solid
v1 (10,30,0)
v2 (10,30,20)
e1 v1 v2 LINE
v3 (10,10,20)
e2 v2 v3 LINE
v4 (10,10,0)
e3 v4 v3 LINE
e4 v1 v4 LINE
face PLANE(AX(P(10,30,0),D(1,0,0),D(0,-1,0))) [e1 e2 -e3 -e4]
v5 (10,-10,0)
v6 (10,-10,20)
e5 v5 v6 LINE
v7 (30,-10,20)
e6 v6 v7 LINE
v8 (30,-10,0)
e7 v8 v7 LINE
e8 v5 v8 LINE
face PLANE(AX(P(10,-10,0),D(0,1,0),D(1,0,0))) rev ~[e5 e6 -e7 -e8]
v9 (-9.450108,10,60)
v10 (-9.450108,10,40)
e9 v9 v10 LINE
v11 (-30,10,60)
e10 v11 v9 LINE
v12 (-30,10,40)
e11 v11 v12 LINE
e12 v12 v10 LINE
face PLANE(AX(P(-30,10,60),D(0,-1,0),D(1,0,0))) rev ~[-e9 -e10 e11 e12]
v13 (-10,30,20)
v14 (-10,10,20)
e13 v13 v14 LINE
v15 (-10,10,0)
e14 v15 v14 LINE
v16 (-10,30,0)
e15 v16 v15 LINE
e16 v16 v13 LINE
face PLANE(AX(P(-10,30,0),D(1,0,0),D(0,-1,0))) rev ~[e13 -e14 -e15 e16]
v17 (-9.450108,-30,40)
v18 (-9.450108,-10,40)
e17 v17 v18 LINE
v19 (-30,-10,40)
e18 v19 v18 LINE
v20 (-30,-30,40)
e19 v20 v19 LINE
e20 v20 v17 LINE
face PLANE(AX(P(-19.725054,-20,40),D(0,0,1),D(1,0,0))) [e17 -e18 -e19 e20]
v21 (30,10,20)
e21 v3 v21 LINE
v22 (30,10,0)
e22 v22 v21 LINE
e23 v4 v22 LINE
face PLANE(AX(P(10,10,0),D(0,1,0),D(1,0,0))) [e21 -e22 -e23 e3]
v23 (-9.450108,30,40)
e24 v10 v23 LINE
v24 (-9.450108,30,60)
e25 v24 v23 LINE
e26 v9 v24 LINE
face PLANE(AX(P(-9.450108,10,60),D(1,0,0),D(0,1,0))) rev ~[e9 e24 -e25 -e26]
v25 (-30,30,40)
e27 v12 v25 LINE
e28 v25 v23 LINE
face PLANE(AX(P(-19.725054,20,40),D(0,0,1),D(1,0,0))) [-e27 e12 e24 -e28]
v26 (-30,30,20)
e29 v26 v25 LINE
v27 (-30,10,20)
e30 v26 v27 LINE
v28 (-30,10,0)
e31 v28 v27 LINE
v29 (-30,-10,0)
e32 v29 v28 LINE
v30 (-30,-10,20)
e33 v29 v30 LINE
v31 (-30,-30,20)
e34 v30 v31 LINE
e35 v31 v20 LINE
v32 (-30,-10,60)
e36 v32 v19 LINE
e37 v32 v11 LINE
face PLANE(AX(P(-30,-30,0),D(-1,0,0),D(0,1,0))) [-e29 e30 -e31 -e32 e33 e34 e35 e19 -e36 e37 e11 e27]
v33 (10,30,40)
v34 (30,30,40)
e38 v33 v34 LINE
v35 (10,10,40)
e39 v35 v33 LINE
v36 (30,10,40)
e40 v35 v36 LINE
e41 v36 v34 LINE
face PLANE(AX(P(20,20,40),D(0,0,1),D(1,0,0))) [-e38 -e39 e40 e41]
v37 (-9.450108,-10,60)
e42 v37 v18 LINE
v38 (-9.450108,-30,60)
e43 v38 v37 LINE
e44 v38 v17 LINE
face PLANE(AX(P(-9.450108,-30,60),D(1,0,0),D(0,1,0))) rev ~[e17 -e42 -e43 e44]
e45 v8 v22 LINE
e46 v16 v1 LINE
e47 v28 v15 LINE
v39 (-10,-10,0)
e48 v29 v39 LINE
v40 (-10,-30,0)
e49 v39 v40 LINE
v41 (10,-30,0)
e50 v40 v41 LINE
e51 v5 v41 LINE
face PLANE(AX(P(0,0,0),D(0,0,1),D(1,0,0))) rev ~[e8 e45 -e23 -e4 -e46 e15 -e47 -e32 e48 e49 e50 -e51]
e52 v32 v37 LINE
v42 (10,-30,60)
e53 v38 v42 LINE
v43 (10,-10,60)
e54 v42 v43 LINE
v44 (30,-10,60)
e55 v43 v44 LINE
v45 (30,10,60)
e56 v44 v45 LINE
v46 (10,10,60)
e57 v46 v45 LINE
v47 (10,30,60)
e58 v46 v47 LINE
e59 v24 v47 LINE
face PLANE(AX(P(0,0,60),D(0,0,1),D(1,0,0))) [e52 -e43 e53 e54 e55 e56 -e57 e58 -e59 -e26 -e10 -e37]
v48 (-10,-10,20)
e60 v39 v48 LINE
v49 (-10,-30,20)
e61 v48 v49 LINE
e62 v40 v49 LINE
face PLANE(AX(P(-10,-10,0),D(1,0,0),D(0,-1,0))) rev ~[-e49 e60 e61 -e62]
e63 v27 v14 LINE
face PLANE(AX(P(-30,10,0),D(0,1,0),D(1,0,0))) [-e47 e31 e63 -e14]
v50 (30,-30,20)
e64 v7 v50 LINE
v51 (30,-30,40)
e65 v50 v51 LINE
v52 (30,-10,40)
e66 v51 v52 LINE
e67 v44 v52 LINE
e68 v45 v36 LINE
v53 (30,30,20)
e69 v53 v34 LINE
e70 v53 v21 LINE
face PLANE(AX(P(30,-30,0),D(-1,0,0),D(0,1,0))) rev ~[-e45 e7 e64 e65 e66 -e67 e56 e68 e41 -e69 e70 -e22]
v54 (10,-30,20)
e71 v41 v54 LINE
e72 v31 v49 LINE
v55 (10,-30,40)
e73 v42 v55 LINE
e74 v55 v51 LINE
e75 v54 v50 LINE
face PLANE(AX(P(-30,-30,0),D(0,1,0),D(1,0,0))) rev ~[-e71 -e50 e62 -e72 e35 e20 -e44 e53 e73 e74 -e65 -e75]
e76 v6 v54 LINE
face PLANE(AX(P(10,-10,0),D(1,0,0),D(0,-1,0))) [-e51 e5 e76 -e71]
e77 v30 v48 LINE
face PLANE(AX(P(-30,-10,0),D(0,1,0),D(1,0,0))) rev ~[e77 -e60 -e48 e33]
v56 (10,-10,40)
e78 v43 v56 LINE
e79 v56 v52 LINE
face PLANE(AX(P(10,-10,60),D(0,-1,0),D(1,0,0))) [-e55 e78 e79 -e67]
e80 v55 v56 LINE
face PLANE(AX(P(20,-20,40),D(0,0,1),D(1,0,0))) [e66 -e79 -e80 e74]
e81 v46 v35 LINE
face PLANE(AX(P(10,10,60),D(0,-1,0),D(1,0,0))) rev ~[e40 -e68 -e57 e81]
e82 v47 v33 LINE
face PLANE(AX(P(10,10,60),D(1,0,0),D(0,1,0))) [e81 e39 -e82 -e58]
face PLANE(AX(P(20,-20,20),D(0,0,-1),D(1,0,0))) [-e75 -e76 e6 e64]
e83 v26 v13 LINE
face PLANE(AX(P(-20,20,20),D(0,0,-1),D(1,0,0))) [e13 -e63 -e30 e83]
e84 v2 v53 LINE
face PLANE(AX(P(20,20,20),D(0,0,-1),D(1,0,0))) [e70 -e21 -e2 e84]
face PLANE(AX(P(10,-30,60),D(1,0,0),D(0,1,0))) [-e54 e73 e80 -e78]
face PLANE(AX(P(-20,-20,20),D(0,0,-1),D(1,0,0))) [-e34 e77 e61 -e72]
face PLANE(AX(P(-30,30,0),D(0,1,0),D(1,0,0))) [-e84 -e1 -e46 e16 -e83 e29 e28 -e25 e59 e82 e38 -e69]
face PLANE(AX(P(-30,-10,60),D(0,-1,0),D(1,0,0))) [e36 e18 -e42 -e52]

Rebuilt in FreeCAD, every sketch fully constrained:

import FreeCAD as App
import Part
import Sketcher
Q = App.Units.Quantity


def add_polygon(sketch, points):
    """Adds a closed chain of lines whose ends are joined by coincident constraints."""
    first, n = sketch.GeometryCount, len(points)
    for a, b in zip(points, points[1:] + points[:1]):
        sketch.addGeometry(Part.LineSegment(App.Vector(*a, 0), App.Vector(*b, 0)), False)
    for i in range(n):
        sketch.addConstraint(Sketcher.Constraint("Coincident", first + i, 2, first + (i + 1) % n, 1))

doc = App.newDocument("Part")
params = doc.addObject("Spreadsheet::Sheet", "Params")
for row, (alias, value) in enumerate([
    ("sketch1_width", "60 mm"),
    ("pad1_length", "60 mm"),
    ("sketch2_width", "20 mm"),
    ("pocket1_length", "20 mm"),
    ("sketch3_width", "20 mm"),
    ("pocket2_length", "20 mm"),
], start=1):
    params.set(f"A{row}", alias)
    params.set(f"B{row}", "=" + value)
    params.setAlias(f"B{row}", alias)

body = doc.addObject("PartDesign::Body", "Body")

sketch1 = doc.addObject("Sketcher::SketchObject", "Sketch")
body.addObject(sketch1)
sketch1.AttachmentSupport = (doc.XY_Plane, [""])
sketch1.MapMode = "FlatFace"
add_polygon(sketch1, [(-30, 30), (-30, -30), (30, -30), (30, 30)])
sketch1.addConstraint(Sketcher.Constraint("Vertical", 0))
sketch1.addConstraint(Sketcher.Constraint("Horizontal", 1))
sketch1.addConstraint(Sketcher.Constraint("Vertical", 2))
sketch1.addConstraint(Sketcher.Constraint("Horizontal", 3))
sketch1.addConstraint(Sketcher.Constraint("Symmetric", 0, 2, 2, 2, -1, 1))
sketch1.addConstraint(Sketcher.Constraint("Equal", 3, 0))
sketch1.addConstraint(Sketcher.Constraint("DistanceX", 1, 1, 1, 2, Q("60 mm")))
sketch1.setExpression("Constraints[10]", "Params.sketch1_width")
pad1 = doc.addObject("PartDesign::Pad", "Pad")
body.addObject(pad1)
pad1.Profile = sketch1
pad1.setExpression("Length", "Params.pad1_length")

sketch2 = doc.addObject("Sketcher::SketchObject", "Sketch001")
body.addObject(sketch2)
sketch2.AttachmentSupport = (doc.XY_Plane, [""])
sketch2.MapMode = "FlatFace"
sketch2.AttachmentOffset = App.Placement(App.Vector(0, 0, 60), App.Rotation())
add_polygon(sketch2, [(-30, 30), (-30, 10), (-9, 10), (-9, 30)])
add_polygon(sketch2, [(10, 30), (10, 10), (30, 10), (30, 30)])
add_polygon(sketch2, [(10, -10), (10, -30), (30, -30), (30, -10)])
add_polygon(sketch2, [(-30, -10), (-30, -30), (-9, -30), (-9, -10)])
sketch2.addConstraint(Sketcher.Constraint("Vertical", 0))
sketch2.addConstraint(Sketcher.Constraint("Horizontal", 1))
sketch2.addConstraint(Sketcher.Constraint("Vertical", 2))
sketch2.addConstraint(Sketcher.Constraint("Horizontal", 3))
sketch2.addConstraint(Sketcher.Constraint("Vertical", 4))
sketch2.addConstraint(Sketcher.Constraint("Horizontal", 5))
sketch2.addConstraint(Sketcher.Constraint("Vertical", 6))
sketch2.addConstraint(Sketcher.Constraint("Horizontal", 7))
sketch2.addConstraint(Sketcher.Constraint("Vertical", 8))
sketch2.addConstraint(Sketcher.Constraint("Horizontal", 9))
sketch2.addConstraint(Sketcher.Constraint("Vertical", 10))
sketch2.addConstraint(Sketcher.Constraint("Horizontal", 11))
sketch2.addConstraint(Sketcher.Constraint("Vertical", 12))
sketch2.addConstraint(Sketcher.Constraint("Horizontal", 13))
sketch2.addConstraint(Sketcher.Constraint("Vertical", 14))
sketch2.addConstraint(Sketcher.Constraint("Horizontal", 15))
sketch2.addConstraint(Sketcher.Constraint("Symmetric", 3, 2, 9, 2, -1, 1))
sketch2.addConstraint(Sketcher.Constraint("Symmetric", 6, 2, 12, 2, -1, 1))
sketch2.addConstraint(Sketcher.Constraint("Symmetric", 0, 2, 5, 2, -2))
sketch2.addConstraint(Sketcher.Constraint("Symmetric", 7, 2, 8, 2, -1))
sketch2.addConstraint(Sketcher.Constraint("Symmetric", 1, 2, 14, 2, -1))
sketch2.addConstraint(Sketcher.Constraint("Horizontal", 11, 2, 14, 2))
sketch2.addConstraint(Sketcher.Constraint("Equal", 11, 0))
sketch2.addConstraint(Sketcher.Constraint("DistanceX", 5, 1, 5, 2, Q("20 mm")))
sketch2.addConstraint(Sketcher.Constraint("DistanceX", 0, 2, -1, 1, Q("30 mm")))
sketch2.addConstraint(Sketcher.Constraint("DistanceY", -1, 1, 0, 2, Q("10 mm")))
sketch2.addConstraint(Sketcher.Constraint("DistanceX", 1, 1, 1, 2, Q("20.549892 mm")))
sketch2.setExpression("Constraints[39]", "Params.sketch2_width")
pocket1 = doc.addObject("PartDesign::Pocket", "Pocket")
body.addObject(pocket1)
pocket1.Profile = sketch2
pocket1.setExpression("Length", "Params.pocket1_length")

sketch3 = doc.addObject("Sketcher::SketchObject", "Sketch002")
body.addObject(sketch3)
sketch3.AttachmentSupport = (doc.XY_Plane, [""])
sketch3.MapMode = "FlatFace"
add_polygon(sketch3, [(10, 10), (10, 30), (30, 30), (30, 10)])
add_polygon(sketch3, [(-30, 10), (-30, 30), (-10, 30), (-10, 10)])
add_polygon(sketch3, [(-30, -30), (-30, -10), (-10, -10), (-10, -30)])
add_polygon(sketch3, [(10, -30), (10, -10), (30, -10), (30, -30)])
sketch3.addConstraint(Sketcher.Constraint("Vertical", 0))
sketch3.addConstraint(Sketcher.Constraint("Horizontal", 1))
sketch3.addConstraint(Sketcher.Constraint("Vertical", 2))
sketch3.addConstraint(Sketcher.Constraint("Horizontal", 3))
sketch3.addConstraint(Sketcher.Constraint("Vertical", 4))
sketch3.addConstraint(Sketcher.Constraint("Horizontal", 5))
sketch3.addConstraint(Sketcher.Constraint("Vertical", 6))
sketch3.addConstraint(Sketcher.Constraint("Horizontal", 7))
sketch3.addConstraint(Sketcher.Constraint("Vertical", 8))
sketch3.addConstraint(Sketcher.Constraint("Horizontal", 9))
sketch3.addConstraint(Sketcher.Constraint("Vertical", 10))
sketch3.addConstraint(Sketcher.Constraint("Horizontal", 11))
sketch3.addConstraint(Sketcher.Constraint("Vertical", 12))
sketch3.addConstraint(Sketcher.Constraint("Horizontal", 13))
sketch3.addConstraint(Sketcher.Constraint("Vertical", 14))
sketch3.addConstraint(Sketcher.Constraint("Horizontal", 15))
sketch3.addConstraint(Sketcher.Constraint("Symmetric", 2, 2, 8, 2, -1, 1))
sketch3.addConstraint(Sketcher.Constraint("Symmetric", 0, 2, 10, 2, -1, 1))
sketch3.addConstraint(Sketcher.Constraint("Symmetric", 6, 2, 12, 2, -1, 1))
sketch3.addConstraint(Sketcher.Constraint("Symmetric", 4, 2, 14, 2, -1, 1))
sketch3.addConstraint(Sketcher.Constraint("Symmetric", 1, 2, 4, 2, -2))
sketch3.addConstraint(Sketcher.Constraint("Symmetric", 3, 2, 6, 2, -2))
sketch3.addConstraint(Sketcher.Constraint("Equal", 15, 0))
sketch3.addConstraint(Sketcher.Constraint("DistanceX", 1, 1, 1, 2, Q("20 mm")))
sketch3.addConstraint(Sketcher.Constraint("DistanceX", -1, 1, 0, 2, Q("10 mm")))
sketch3.addConstraint(Sketcher.Constraint("DistanceY", -1, 1, 0, 2, Q("30 mm")))
sketch3.setExpression("Constraints[39]", "Params.sketch3_width")
pocket2 = doc.addObject("PartDesign::Pocket", "Pocket001")
body.addObject(pocket2)
pocket2.Profile = sketch3
pocket2.setExpression("Length", "Params.pocket2_length")
pocket2.Reversed = True

doc.recompute()
